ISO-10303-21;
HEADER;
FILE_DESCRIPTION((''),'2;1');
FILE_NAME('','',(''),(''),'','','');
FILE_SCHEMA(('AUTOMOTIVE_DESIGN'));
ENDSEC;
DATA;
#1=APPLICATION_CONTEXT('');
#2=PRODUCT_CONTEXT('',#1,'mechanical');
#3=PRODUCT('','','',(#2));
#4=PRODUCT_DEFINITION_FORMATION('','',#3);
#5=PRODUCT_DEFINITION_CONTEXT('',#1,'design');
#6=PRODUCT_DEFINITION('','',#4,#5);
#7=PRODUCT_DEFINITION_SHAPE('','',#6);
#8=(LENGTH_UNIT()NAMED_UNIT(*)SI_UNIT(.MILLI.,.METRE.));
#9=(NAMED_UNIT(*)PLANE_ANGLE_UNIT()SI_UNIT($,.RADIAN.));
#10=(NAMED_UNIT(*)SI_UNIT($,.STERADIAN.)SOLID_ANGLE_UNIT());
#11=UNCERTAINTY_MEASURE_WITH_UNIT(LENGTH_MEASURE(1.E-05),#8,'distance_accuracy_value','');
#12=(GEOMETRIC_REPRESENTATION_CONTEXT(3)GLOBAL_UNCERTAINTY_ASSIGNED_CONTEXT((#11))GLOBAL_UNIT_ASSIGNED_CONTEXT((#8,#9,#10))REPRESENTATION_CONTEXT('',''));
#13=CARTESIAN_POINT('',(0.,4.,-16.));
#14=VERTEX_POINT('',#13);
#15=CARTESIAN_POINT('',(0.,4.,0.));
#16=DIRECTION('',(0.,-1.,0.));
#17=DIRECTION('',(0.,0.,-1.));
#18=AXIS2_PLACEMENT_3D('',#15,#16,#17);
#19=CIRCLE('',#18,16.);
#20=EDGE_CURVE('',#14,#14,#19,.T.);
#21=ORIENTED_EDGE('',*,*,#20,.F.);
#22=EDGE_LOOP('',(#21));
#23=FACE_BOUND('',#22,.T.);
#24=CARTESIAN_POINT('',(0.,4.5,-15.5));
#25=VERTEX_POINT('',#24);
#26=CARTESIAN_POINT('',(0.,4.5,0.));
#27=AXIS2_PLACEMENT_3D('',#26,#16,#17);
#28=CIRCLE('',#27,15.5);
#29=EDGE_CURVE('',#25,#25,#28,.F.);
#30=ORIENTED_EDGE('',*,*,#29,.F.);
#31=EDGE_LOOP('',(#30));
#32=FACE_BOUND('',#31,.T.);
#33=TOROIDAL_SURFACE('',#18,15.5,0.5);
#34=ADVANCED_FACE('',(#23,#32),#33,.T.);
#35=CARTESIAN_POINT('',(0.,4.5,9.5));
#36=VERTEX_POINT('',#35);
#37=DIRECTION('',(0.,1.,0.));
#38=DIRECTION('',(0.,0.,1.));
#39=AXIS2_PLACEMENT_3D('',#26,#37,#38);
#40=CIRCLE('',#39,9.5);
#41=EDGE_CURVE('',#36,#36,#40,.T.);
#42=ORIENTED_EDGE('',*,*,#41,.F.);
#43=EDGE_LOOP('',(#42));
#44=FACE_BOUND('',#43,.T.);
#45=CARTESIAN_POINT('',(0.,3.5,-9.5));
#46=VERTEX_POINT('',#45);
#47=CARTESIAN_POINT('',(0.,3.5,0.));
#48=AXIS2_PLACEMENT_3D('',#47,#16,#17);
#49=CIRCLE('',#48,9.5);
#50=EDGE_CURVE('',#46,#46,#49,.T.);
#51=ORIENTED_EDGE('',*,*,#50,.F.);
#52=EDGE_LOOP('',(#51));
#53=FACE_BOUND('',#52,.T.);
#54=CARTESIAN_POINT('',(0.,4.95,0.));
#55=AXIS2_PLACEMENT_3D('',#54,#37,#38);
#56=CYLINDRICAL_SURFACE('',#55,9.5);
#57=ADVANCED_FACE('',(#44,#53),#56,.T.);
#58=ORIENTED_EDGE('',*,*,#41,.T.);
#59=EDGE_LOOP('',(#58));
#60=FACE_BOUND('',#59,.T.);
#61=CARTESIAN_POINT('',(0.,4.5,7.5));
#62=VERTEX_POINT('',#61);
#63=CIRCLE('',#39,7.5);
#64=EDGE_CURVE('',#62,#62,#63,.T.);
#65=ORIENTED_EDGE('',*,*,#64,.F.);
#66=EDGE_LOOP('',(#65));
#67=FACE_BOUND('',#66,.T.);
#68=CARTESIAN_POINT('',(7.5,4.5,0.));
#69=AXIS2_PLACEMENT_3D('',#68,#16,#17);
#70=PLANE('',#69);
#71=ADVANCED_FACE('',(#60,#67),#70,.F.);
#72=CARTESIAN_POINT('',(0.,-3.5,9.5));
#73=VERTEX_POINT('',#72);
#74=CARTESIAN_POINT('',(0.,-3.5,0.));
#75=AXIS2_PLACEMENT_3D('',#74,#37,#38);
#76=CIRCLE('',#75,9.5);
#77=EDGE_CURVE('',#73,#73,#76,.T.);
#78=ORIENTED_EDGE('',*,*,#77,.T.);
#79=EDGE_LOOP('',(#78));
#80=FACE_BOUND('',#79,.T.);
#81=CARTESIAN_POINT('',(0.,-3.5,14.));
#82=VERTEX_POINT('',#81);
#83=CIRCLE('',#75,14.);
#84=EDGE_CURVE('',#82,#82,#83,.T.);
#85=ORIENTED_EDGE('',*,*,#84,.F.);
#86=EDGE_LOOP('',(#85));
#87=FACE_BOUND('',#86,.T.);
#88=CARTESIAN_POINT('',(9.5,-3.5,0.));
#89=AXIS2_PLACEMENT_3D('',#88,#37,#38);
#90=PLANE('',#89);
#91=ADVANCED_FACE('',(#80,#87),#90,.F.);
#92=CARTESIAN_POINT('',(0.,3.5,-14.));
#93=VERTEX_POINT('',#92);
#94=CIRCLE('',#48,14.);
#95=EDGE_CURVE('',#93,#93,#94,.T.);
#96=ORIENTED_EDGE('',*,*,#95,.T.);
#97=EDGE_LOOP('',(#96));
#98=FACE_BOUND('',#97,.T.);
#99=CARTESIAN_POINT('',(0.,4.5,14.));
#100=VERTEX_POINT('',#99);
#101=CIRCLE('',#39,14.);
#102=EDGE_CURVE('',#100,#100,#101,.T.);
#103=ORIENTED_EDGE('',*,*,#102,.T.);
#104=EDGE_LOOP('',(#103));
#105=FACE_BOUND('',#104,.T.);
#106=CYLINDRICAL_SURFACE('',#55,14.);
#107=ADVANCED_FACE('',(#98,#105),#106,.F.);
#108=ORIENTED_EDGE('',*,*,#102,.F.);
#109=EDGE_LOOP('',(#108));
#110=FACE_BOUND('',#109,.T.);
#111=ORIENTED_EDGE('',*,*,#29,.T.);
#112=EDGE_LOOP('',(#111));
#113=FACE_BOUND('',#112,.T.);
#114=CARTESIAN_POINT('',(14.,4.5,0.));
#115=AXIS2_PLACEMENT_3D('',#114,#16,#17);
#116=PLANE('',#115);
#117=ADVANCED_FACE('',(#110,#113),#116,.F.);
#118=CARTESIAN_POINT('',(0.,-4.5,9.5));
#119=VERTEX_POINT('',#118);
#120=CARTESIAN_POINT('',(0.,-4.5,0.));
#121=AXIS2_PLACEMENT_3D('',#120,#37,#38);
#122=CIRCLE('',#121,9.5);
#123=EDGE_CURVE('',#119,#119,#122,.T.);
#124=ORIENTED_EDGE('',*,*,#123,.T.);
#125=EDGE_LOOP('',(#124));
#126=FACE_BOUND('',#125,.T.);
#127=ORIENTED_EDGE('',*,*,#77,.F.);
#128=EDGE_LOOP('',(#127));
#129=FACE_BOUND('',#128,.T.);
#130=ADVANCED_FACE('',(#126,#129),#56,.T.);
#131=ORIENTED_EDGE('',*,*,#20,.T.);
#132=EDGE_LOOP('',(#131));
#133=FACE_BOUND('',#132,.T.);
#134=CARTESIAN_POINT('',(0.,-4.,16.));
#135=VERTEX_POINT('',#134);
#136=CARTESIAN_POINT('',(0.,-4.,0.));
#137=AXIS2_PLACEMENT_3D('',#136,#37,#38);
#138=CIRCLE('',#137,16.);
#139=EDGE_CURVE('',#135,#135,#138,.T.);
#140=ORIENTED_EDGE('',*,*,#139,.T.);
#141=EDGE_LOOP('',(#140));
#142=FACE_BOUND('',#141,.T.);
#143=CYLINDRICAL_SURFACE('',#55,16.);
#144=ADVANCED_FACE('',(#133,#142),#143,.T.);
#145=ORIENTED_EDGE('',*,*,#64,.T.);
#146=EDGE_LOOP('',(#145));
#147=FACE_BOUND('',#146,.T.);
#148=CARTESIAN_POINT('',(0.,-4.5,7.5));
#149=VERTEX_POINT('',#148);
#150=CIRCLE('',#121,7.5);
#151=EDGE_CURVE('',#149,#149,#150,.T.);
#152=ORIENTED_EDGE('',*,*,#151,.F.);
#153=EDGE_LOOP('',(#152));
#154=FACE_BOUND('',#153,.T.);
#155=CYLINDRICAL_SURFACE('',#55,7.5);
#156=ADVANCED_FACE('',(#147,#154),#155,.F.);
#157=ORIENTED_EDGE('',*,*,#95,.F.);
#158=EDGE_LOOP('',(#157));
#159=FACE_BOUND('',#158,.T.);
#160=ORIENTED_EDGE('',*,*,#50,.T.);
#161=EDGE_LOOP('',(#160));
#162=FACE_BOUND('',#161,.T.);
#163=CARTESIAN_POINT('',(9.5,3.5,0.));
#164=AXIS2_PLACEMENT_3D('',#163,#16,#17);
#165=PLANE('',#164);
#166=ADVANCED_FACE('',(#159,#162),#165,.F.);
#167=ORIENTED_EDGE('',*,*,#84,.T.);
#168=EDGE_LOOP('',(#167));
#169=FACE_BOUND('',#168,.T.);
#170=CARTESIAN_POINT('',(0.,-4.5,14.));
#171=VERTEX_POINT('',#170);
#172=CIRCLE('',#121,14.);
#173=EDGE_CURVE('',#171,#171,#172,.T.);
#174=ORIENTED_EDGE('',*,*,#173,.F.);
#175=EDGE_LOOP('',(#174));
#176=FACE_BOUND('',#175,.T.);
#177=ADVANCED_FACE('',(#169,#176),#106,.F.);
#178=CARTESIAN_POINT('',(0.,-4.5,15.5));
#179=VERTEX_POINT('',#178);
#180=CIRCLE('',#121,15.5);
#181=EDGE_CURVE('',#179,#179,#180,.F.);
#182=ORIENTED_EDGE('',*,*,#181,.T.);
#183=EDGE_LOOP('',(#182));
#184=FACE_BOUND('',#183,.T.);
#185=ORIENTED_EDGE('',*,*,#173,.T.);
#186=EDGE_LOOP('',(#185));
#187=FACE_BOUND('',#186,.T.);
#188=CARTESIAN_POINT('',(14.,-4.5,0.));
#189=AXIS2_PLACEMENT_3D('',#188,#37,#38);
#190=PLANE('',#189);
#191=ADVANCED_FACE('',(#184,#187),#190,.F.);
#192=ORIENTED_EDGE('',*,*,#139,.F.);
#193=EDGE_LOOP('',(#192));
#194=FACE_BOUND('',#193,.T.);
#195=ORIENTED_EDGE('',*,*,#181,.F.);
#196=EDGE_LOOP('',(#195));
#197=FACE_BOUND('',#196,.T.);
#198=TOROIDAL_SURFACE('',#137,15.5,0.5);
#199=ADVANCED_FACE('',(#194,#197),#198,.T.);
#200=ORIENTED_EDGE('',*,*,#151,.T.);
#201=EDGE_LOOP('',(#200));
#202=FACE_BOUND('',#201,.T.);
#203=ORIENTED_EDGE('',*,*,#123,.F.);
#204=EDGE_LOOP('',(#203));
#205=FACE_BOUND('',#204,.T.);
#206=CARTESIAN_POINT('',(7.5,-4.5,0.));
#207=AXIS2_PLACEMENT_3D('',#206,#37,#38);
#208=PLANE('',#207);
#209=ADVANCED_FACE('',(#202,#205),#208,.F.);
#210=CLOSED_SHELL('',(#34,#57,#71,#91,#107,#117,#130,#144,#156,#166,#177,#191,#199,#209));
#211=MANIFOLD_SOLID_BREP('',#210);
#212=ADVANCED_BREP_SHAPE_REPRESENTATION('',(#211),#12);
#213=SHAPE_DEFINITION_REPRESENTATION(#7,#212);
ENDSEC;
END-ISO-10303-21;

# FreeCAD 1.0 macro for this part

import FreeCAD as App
import Part
import Sketcher


def edges_at(feature, points):
    """Names of the edges that pass closest to the given points."""
    edges = feature.Shape.Edges
    near = lambda p: min(range(len(edges)), key=lambda i: edges[i].distToShape(Part.Vertex(*p))[0])
    return sorted({f"Edge{near(p) + 1}" for p in points})

doc = App.newDocument("Part")
body = doc.addObject("PartDesign::Body", "Body")

sketch1 = body.newObject("Sketcher::SketchObject", "Sketch")
sketch1.AttachmentSupport = (doc.getObject("XY_Plane"), [""])
sketch1.MapMode = "FlatFace"
sketch1.addGeometry(Part.LineSegment(App.Vector(7.5, 4.5, 0), App.Vector(7.5, -4.5, 0)), False)
sketch1.addGeometry(Part.LineSegment(App.Vector(7.5, -4.5, 0), App.Vector(9.5, -4.5, 0)), False)
sketch1.addGeometry(Part.LineSegment(App.Vector(9.5, -4.5, 0), App.Vector(9.5, 4.5, 0)), False)
sketch1.addGeometry(Part.LineSegment(App.Vector(9.5, 4.5, 0), App.Vector(7.5, 4.5, 0)), False)
sketch1.addConstraint(Sketcher.Constraint("Coincident", 0, 2, 1, 1))
sketch1.addConstraint(Sketcher.Constraint("Coincident", 1, 2, 2, 1))
sketch1.addConstraint(Sketcher.Constraint("Coincident", 2, 2, 3, 1))
sketch1.addConstraint(Sketcher.Constraint("Coincident", 3, 2, 0, 1))
sketch1.addConstraint(Sketcher.Constraint("Vertical", 0))
sketch1.addConstraint(Sketcher.Constraint("Horizontal", 1))
sketch1.addConstraint(Sketcher.Constraint("Vertical", 2))
sketch1.addConstraint(Sketcher.Constraint("Horizontal", 3))
sketch1.addConstraint(Sketcher.Constraint("DistanceX", 1, 1, 1, 2, 2.0))
sketch1.addConstraint(Sketcher.Constraint("DistanceY", 0, 2, 0, 1, 9.0))
sketch1.addConstraint(Sketcher.Constraint("DistanceX", -1, 1, 0, 2, 7.5))
sketch1.addConstraint(Sketcher.Constraint("DistanceY", 0, 2, -1, 1, 4.5))
revolution = body.newObject("PartDesign::Revolution", "Revolution")
revolution.Profile = sketch1
revolution.ReferenceAxis = (sketch1, ["V_Axis"])
revolution.Angle = 360
body2 = doc.addObject("PartDesign::Body", "Body001")

sketch2 = body2.newObject("Sketcher::SketchObject", "Sketch001")
sketch2.AttachmentSupport = (doc.getObject("XY_Plane001"), [""])
sketch2.MapMode = "FlatFace"
sketch2.addGeometry(Part.LineSegment(App.Vector(14, 4.5, 0), App.Vector(14, -4.5, 0)), False)
sketch2.addGeometry(Part.LineSegment(App.Vector(14, -4.5, 0), App.Vector(16, -4.5, 0)), False)
sketch2.addGeometry(Part.LineSegment(App.Vector(16, -4.5, 0), App.Vector(16, 4.5, 0)), False)
sketch2.addGeometry(Part.LineSegment(App.Vector(16, 4.5, 0), App.Vector(14, 4.5, 0)), False)
sketch2.addConstraint(Sketcher.Constraint("Coincident", 0, 2, 1, 1))
sketch2.addConstraint(Sketcher.Constraint("Coincident", 1, 2, 2, 1))
sketch2.addConstraint(Sketcher.Constraint("Coincident", 2, 2, 3, 1))
sketch2.addConstraint(Sketcher.Constraint("Coincident", 3, 2, 0, 1))
sketch2.addConstraint(Sketcher.Constraint("Vertical", 0))
sketch2.addConstraint(Sketcher.Constraint("Horizontal", 1))
sketch2.addConstraint(Sketcher.Constraint("Vertical", 2))
sketch2.addConstraint(Sketcher.Constraint("Horizontal", 3))
sketch2.addConstraint(Sketcher.Constraint("DistanceX", 1, 1, 1, 2, 2.0))
sketch2.addConstraint(Sketcher.Constraint("DistanceY", 0, 2, 0, 1, 9.0))
sketch2.addConstraint(Sketcher.Constraint("DistanceX", -1, 1, 0, 2, 14.0))
sketch2.addConstraint(Sketcher.Constraint("DistanceY", 0, 2, -1, 1, 4.5))
revolution2 = body2.newObject("PartDesign::Revolution", "Revolution001")
revolution2.Profile = sketch2
revolution2.ReferenceAxis = (sketch2, ["V_Axis"])
revolution2.Angle = 360
body.AllowCompound = True
doc.recompute()

boolean = body.newObject("PartDesign::Boolean", "Boolean")
boolean.Type = "Fuse"
boolean.addObjects([body2])

sketch3 = body.newObject("Sketcher::SketchObject", "Sketch002")
sketch3.AttachmentSupport = (doc.getObject("XY_Plane"), [""])
sketch3.MapMode = "FlatFace"
sketch3.addGeometry(Part.LineSegment(App.Vector(9.5, 3.5, 0), App.Vector(9.5, -3.5, 0)), False)
sketch3.addGeometry(Part.LineSegment(App.Vector(9.5, -3.5, 0), App.Vector(14, -3.5, 0)), False)
sketch3.addGeometry(Part.LineSegment(App.Vector(14, -3.5, 0), App.Vector(14, 3.5, 0)), False)
sketch3.addGeometry(Part.LineSegment(App.Vector(14, 3.5, 0), App.Vector(9.5, 3.5, 0)), False)
sketch3.addConstraint(Sketcher.Constraint("Coincident", 0, 2, 1, 1))
sketch3.addConstraint(Sketcher.Constraint("Coincident", 1, 2, 2, 1))
sketch3.addConstraint(Sketcher.Constraint("Coincident", 2, 2, 3, 1))
sketch3.addConstraint(Sketcher.Constraint("Coincident", 3, 2, 0, 1))
sketch3.addConstraint(Sketcher.Constraint("Vertical", 0))
sketch3.addConstraint(Sketcher.Constraint("Horizontal", 1))
sketch3.addConstraint(Sketcher.Constraint("Vertical", 2))
sketch3.addConstraint(Sketcher.Constraint("Horizontal", 3))
sketch3.addConstraint(Sketcher.Constraint("DistanceY", 0, 2, 0, 1, 7.0))
sketch3.addConstraint(Sketcher.Constraint("DistanceX", 1, 1, 1, 2, 4.5))
sketch3.addConstraint(Sketcher.Constraint("DistanceX", -1, 1, 1, 2, 14.0))
sketch3.addConstraint(Sketcher.Constraint("DistanceY", 0, 2, -1, 1, 3.5))
revolution3 = body.newObject("PartDesign::Revolution", "Revolution002")
revolution3.Profile = sketch3
revolution3.ReferenceAxis = (sketch3, ["V_Axis"])
revolution3.Angle = 360
doc.recompute()

fillet = body.newObject("PartDesign::Fillet", "Fillet")
fillet.Base = (revolution3, edges_at(revolution3, [(0, -4.5, -16), (0, 4.5, -16)]))
fillet.Radius = 0.5

doc.recompute()
